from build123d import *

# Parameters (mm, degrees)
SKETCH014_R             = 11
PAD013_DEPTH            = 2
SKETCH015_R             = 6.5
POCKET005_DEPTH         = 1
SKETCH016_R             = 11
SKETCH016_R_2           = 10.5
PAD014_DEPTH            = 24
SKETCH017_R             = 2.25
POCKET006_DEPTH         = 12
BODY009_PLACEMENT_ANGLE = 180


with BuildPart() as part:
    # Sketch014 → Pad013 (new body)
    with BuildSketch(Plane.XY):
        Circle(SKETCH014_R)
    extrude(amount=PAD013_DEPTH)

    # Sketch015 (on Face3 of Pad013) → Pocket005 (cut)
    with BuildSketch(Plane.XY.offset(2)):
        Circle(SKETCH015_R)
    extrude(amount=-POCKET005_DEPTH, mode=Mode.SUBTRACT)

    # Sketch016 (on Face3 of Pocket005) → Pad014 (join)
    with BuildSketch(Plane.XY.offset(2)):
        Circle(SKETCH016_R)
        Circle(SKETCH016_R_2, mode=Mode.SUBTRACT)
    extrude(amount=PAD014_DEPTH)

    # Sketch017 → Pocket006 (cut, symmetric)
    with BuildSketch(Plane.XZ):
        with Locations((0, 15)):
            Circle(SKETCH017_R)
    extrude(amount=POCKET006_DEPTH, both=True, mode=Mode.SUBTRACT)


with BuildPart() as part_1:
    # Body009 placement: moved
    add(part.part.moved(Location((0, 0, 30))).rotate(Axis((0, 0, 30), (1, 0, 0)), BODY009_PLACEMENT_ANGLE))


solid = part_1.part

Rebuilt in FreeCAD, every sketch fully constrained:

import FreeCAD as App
import Part
import Sketcher

doc = App.newDocument("Part")
params = doc.addObject("Spreadsheet::Sheet", "Params")
for row, (alias, value) in enumerate([
    ("sketch1_diameter", "22 mm"),
    ("pad1_length", "2 mm"),
    ("sketch2_diameter", "13 mm"),
    ("pocket1_length", "1 mm"),
    ("sketch3_diameter", "22 mm"),
    ("sketch3_diameter2", "21 mm"),
    ("pad2_length", "24 mm"),
    ("sketch4_diameter", "4.5 mm"),
    ("pocket2_length", "24 mm"),
], start=1):
    params.set(f"A{row}", alias)
    params.set(f"B{row}", "=" + value)
    params.setAlias(f"B{row}", alias)

body = doc.addObject("PartDesign::Body", "Body")

# Sketch on XY plane
sketch1 = body.newObject("Sketcher::SketchObject", "Sketch")
sketch1.AttachmentSupport = (doc.getObject("XY_Plane"), [""])
sketch1.MapMode = "FlatFace"
sketch1.addGeometry(Part.Circle(App.Vector(0, 0, 0), App.Vector(0, 0, 1), 11), False)
sketch1.addConstraint(Sketcher.Constraint("Coincident", 0, 3, -1, 1))
sketch1.addConstraint(Sketcher.Constraint("Diameter", 0, 22.0))
sketch1.setExpression("Constraints[1]", "Params.sketch1_diameter")
pad1 = body.newObject("PartDesign::Pad", "Pad")
pad1.Profile = sketch1
pad1.setExpression("Length", "Params.pad1_length")

# Sketch on XY plane
sketch2 = body.newObject("Sketcher::SketchObject", "Sketch001")
sketch2.AttachmentSupport = (doc.getObject("XY_Plane"), [""])
sketch2.MapMode = "FlatFace"
sketch2.AttachmentOffset = App.Placement(App.Vector(0, 0, 2), App.Rotation())
sketch2.addGeometry(Part.Circle(App.Vector(0, 0, 0), App.Vector(0, 0, 1), 6), False)
sketch2.addConstraint(Sketcher.Constraint("Coincident", 0, 3, -1, 1))
sketch2.addConstraint(Sketcher.Constraint("Diameter", 0, 13.0))
sketch2.setExpression("Constraints[1]", "Params.sketch2_diameter")
pocket1 = body.newObject("PartDesign::Pocket", "Pocket")
pocket1.Profile = sketch2
pocket1.setExpression("Length", "Params.pocket1_length")

# Sketch on XY plane
sketch3 = body.newObject("Sketcher::SketchObject", "Sketch002")
sketch3.AttachmentSupport = (doc.getObject("XY_Plane"), [""])
sketch3.MapMode = "FlatFace"
sketch3.AttachmentOffset = App.Placement(App.Vector(0, 0, 2), App.Rotation())
sketch3.addGeometry(Part.Circle(App.Vector(0, 0, 0), App.Vector(0, 0, 1), 11), False)
sketch3.addGeometry(Part.Circle(App.Vector(0, 0, 0), App.Vector(0, 0, 1), 10), False)
sketch3.addConstraint(Sketcher.Constraint("Coincident", 0, 3, -1, 1))
sketch3.addConstraint(Sketcher.Constraint("Coincident", 1, 3, -1, 1))
sketch3.addConstraint(Sketcher.Constraint("Diameter", 0, 22.0))
sketch3.addConstraint(Sketcher.Constraint("Diameter", 1, 21.0))
sketch3.setExpression("Constraints[2]", "Params.sketch3_diameter")
sketch3.setExpression("Constraints[3]", "Params.sketch3_diameter2")
pad2 = body.newObject("PartDesign::Pad", "Pad001")
pad2.Profile = sketch3
pad2.setExpression("Length", "Params.pad2_length")

# Sketch on XZ plane
sketch4 = body.newObject("Sketcher::SketchObject", "Sketch003")
sketch4.AttachmentSupport = (doc.getObject("XZ_Plane"), [""])
sketch4.MapMode = "FlatFace"
sketch4.addGeometry(Part.Circle(App.Vector(0, 15, 0), App.Vector(0, 0, 1), 2.2), False)
sketch4.addConstraint(Sketcher.Constraint("PointOnObject", 0, 3, -2))
sketch4.addConstraint(Sketcher.Constraint("Diameter", 0, 4.5))
sketch4.addConstraint(Sketcher.Constraint("DistanceY", -1, 1, 0, 3, 15.0))
sketch4.setExpression("Constraints[1]", "Params.sketch4_diameter")
pocket2 = body.newObject("PartDesign::Pocket", "Pocket001")
pocket2.Profile = sketch4
pocket2.setExpression("Length", "Params.pocket2_length")
pocket2.Midplane = True
body2 = doc.addObject("PartDesign::Body", "Body001")
doc.recompute()

body.Placement = App.Placement(App.Vector(0, 0, 30), App.Rotation(App.Vector(1, 0, 0), 180))
boolean = body2.newObject("PartDesign::Boolean", "Boolean")
boolean.Type = "Fuse"
boolean.addObjects([body])

doc.recompute()
